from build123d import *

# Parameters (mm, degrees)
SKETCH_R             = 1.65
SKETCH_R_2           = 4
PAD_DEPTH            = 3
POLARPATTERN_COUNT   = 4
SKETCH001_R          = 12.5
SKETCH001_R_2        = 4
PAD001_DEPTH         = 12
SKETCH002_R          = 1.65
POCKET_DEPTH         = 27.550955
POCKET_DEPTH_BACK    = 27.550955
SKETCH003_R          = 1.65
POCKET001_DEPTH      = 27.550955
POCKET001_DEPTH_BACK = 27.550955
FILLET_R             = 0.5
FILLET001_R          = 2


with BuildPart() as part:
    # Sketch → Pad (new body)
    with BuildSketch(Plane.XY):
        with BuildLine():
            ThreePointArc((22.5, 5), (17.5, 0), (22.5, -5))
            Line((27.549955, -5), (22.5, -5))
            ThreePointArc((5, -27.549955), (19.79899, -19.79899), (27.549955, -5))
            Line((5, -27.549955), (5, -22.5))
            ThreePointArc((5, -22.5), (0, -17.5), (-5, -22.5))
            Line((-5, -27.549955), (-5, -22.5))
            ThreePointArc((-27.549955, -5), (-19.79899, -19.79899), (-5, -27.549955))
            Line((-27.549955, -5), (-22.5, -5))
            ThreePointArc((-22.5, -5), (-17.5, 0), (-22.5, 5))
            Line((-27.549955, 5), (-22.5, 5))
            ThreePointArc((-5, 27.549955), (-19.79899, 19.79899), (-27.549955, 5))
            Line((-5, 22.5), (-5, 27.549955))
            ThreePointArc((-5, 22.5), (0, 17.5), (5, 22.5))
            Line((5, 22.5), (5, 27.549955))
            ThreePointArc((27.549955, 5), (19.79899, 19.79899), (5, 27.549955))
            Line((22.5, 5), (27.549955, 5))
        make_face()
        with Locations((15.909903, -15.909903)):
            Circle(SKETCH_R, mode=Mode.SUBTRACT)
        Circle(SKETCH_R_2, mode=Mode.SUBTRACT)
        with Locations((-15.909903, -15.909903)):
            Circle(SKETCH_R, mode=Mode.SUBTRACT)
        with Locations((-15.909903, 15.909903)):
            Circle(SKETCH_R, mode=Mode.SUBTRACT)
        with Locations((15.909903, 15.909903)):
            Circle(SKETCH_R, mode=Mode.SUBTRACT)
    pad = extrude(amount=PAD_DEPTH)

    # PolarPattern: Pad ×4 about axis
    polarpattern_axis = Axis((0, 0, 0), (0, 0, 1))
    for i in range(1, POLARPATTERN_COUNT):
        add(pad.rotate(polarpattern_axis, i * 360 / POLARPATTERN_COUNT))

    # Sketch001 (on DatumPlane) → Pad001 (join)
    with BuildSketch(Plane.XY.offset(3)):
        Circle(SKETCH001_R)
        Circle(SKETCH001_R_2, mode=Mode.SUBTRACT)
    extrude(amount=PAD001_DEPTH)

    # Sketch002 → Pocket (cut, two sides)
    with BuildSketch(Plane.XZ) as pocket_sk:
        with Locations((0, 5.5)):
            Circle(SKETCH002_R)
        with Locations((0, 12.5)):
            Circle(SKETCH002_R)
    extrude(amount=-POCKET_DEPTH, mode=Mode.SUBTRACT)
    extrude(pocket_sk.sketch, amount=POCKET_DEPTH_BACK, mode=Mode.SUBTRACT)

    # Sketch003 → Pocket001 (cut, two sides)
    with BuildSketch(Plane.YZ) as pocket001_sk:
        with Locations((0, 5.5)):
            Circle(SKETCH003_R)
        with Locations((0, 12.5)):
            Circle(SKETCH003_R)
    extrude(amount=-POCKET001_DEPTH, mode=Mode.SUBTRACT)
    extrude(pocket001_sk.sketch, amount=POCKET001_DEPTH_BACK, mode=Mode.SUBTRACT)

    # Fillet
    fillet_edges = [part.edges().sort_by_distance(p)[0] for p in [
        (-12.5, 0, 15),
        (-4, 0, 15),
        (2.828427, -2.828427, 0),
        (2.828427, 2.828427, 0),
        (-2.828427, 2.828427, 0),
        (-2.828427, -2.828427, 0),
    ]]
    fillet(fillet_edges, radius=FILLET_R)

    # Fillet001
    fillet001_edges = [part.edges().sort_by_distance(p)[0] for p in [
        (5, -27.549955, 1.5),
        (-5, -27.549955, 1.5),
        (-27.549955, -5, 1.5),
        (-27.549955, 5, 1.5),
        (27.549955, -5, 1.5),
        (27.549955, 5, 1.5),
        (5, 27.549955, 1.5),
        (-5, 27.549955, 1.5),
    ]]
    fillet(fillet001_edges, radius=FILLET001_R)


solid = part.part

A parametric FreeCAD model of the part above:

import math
import FreeCAD as App
import Part
import Sketcher

V = App.Vector


def edges_at(feature, points):
    """Names of the edges that pass closest to the given points."""
    edges = feature.Shape.Edges
    near = lambda p: min(range(len(edges)), key=lambda i: edges[i].distToShape(Part.Vertex(*p))[0])
    return sorted({f"Edge{near(p) + 1}" for p in points})

doc = App.newDocument("Part")
params = doc.addObject("Spreadsheet::Sheet", "Params")
for row, (alias, value) in enumerate([
    ("sketch1_diameter", "8 mm"),
    ("sketch1_radius", "5 mm"),
    ("sketch1_radius2", "28.000001 mm"),
    ("sketch1_diameter2", "3.3 mm"),
    ("pad1_length", "3 mm"),
    ("sketch2_diameter", "25 mm"),
    ("sketch2_diameter2", "8 mm"),
    ("pad2_length", "12 mm"),
    ("sketch3_diameter", "3.3 mm"),
    ("sketch4_diameter", "3.3 mm"),
    ("fillet_radius", "0.5 mm"),
    ("fillet2_radius", "2 mm"),
], start=1):
    params.set(f"A{row}", alias)
    params.set(f"B{row}", "=" + value)
    params.setAlias(f"B{row}", alias)

body = doc.addObject("PartDesign::Body", "Body")

sketch1 = body.newObject("Sketcher::SketchObject", "Sketch")
sketch1.AttachmentSupport = (doc.getObject("XY_Plane"), [""])
sketch1.MapMode = "FlatFace"
sketch1.addGeometry(Part.ArcOfCircle(Part.Circle(V(22.5, 0, 0), V(0, 0, 1), 5), math.radians(90), math.radians(270)), False)
sketch1.addGeometry(Part.LineSegment(V(22.5, 5, 0), V(27.5, 5, 0)), False)
sketch1.addGeometry(Part.ArcOfCircle(Part.Circle(V(0, 0, 0), V(0, 0, 1), 28), math.radians(10), math.radians(80)), False)
sketch1.addGeometry(Part.LineSegment(V(5, 27.5, 0), V(5, 22.5, 0)), False)
sketch1.addGeometry(Part.ArcOfCircle(Part.Circle(V(0, 22.5, 0), V(0, 0, 1), 5), math.radians(180), math.radians(360)), False)
sketch1.addGeometry(Part.LineSegment(V(-5, 22.5, 0), V(-5, 27.5, 0)), False)
sketch1.addGeometry(Part.ArcOfCircle(Part.Circle(V(0, 0, 0), V(0, 0, 1), 28), math.radians(100), math.radians(170)), False)
sketch1.addGeometry(Part.LineSegment(V(-27.5, 5, 0), V(-22.5, 5, 0)), False)
sketch1.addGeometry(Part.ArcOfCircle(Part.Circle(V(-22.5, 0, 0), V(0, 0, 1), 5), math.radians(-90), math.radians(90)), False)
sketch1.addGeometry(Part.LineSegment(V(-22.5, -5, 0), V(-27.5, -5, 0)), False)
sketch1.addGeometry(Part.ArcOfCircle(Part.Circle(V(0, 0, 0), V(0, 0, 1), 28), math.radians(-170), math.radians(-100)), False)
sketch1.addGeometry(Part.LineSegment(V(-5, -27.5, 0), V(-5, -22.5, 0)), False)
sketch1.addGeometry(Part.ArcOfCircle(Part.Circle(V(0, -22.5, 0), V(0, 0, 1), 5), math.radians(0), math.radians(180)), False)
sketch1.addGeometry(Part.LineSegment(V(5, -22.5, 0), V(5, -27.5, 0)), False)
sketch1.addGeometry(Part.ArcOfCircle(Part.Circle(V(0, 0, 0), V(0, 0, 1), 28), math.radians(-80), math.radians(-10)), False)
sketch1.addGeometry(Part.LineSegment(V(27.5, -5, 0), V(22.5, -5, 0)), False)
sketch1.addGeometry(Part.Circle(V(15.9, -15.9, 0), V(0, 0, 1), 1.6), False)
sketch1.addGeometry(Part.Circle(V(-15.9, -15.9, 0), V(0, 0, 1), 1.6), False)
sketch1.addGeometry(Part.Circle(V(15.9, 15.9, 0), V(0, 0, 1), 1.6), False)
sketch1.addGeometry(Part.Circle(V(0, 0, 0), V(0, 0, 1), 4), False)
sketch1.addGeometry(Part.Circle(V(-15.9, 15.9, 0), V(0, 0, 1), 1.6), False)
sketch1.addConstraint(Sketcher.Constraint("Tangent", 0, 1, 1, 1))
sketch1.addConstraint(Sketcher.Constraint("Coincident", 1, 2, 2, 1))
sketch1.addConstraint(Sketcher.Constraint("Coincident", 2, 2, 3, 1))
sketch1.addConstraint(Sketcher.Constraint("Tangent", 3, 2, 4, 2))
sketch1.addConstraint(Sketcher.Constraint("Tangent", 4, 1, 5, 1))
sketch1.addConstraint(Sketcher.Constraint("Coincident", 5, 2, 6, 1))
sketch1.addConstraint(Sketcher.Constraint("Coincident", 6, 2, 7, 1))
sketch1.addConstraint(Sketcher.Constraint("Tangent", 7, 2, 8, 2))
sketch1.addConstraint(Sketcher.Constraint("Tangent", 8, 1, 9, 1))
sketch1.addConstraint(Sketcher.Constraint("Coincident", 9, 2, 10, 1))
sketch1.addConstraint(Sketcher.Constraint("Coincident", 10, 2, 11, 1))
sketch1.addConstraint(Sketcher.Constraint("Tangent", 11, 2, 12, 2))
sketch1.addConstraint(Sketcher.Constraint("Tangent", 12, 1, 13, 1))
sketch1.addConstraint(Sketcher.Constraint("Coincident", 13, 2, 14, 1))
sketch1.addConstraint(Sketcher.Constraint("Coincident", 14, 2, 15, 1))
sketch1.addConstraint(Sketcher.Constraint("Tangent", 15, 2, 0, 2))
sketch1.addConstraint(Sketcher.Constraint("Horizontal", 1))
sketch1.addConstraint(Sketcher.Constraint("Vertical", 3))
sketch1.addConstraint(Sketcher.Constraint("Vertical", 5))
sketch1.addConstraint(Sketcher.Constraint("Horizontal", 7))
sketch1.addConstraint(Sketcher.Constraint("Horizontal", 9))
sketch1.addConstraint(Sketcher.Constraint("Vertical", 11))
sketch1.addConstraint(Sketcher.Constraint("Vertical", 13))
sketch1.addConstraint(Sketcher.Constraint("Horizontal", 15))
sketch1.addConstraint(Sketcher.Constraint("Coincident", 2, 3, -1, 1))
sketch1.addConstraint(Sketcher.Constraint("Coincident", 6, 3, -1, 1))
sketch1.addConstraint(Sketcher.Constraint("Coincident", 10, 3, -1, 1))
sketch1.addConstraint(Sketcher.Constraint("Coincident", 14, 3, -1, 1))
sketch1.addConstraint(Sketcher.Constraint("Coincident", 19, 3, -1, 1))
sketch1.addConstraint(Sketcher.Constraint("Equal", 0, 4))
sketch1.addConstraint(Sketcher.Constraint("Equal", 2, 6))
sketch1.addConstraint(Sketcher.Constraint("Equal", 4, 8))
sketch1.addConstraint(Sketcher.Constraint("Equal", 6, 10))
sketch1.addConstraint(Sketcher.Constraint("Equal", 8, 12))
sketch1.addConstraint(Sketcher.Constraint("Equal", 10, 14))
sketch1.addConstraint(Sketcher.Constraint("Equal", 16, 17))
sketch1.addConstraint(Sketcher.Constraint("Equal", 17, 18))
sketch1.addConstraint(Sketcher.Constraint("Equal", 18, 20))
sketch1.addConstraint(Sketcher.Constraint("Symmetric", 0, 3, 8, 3, -1, 1))
sketch1.addConstraint(Sketcher.Constraint("Symmetric", 4, 3, 12, 3, -1, 1))
sketch1.addConstraint(Sketcher.Constraint("Symmetric", 17, 3, 18, 3, -1, 1))
sketch1.addConstraint(Sketcher.Constraint("Symmetric", 16, 3, 20, 3, -1, 1))
sketch1.addConstraint(Sketcher.Constraint("Symmetric", 16, 3, 17, 3, -2))
sketch1.addConstraint(Sketcher.Constraint("PointOnObject", 0, 3, -1))
sketch1.addConstraint(Sketcher.Constraint("PointOnObject", 4, 3, -2))
sketch1.addConstraint(Sketcher.Constraint("Equal", 15, 3))
sketch1.addConstraint(Sketcher.Constraint("Diameter", 19, 8.0))
sketch1.addConstraint(Sketcher.Constraint("Radius", 0, 5.0))
sketch1.addConstraint(Sketcher.Constraint("Radius", 2, 28.000001))
sketch1.addConstraint(Sketcher.Constraint("Diameter", 16, 3.3))
sketch1.addConstraint(Sketcher.Constraint("DistanceX", 8, 3, 0, 3, 45.0))
sketch1.addConstraint(Sketcher.Constraint("DistanceX", -1, 1, 16, 3, 15.909903))
sketch1.addConstraint(Sketcher.Constraint("DistanceY", 16, 3, -1, 1, 15.909903))
sketch1.setExpression("Constraints[46]", "Params.sketch1_diameter")
sketch1.setExpression("Constraints[47]", "Params.sketch1_radius")
sketch1.setExpression("Constraints[48]", "Params.sketch1_radius2")
sketch1.setExpression("Constraints[49]", "Params.sketch1_diameter2")
pad1 = body.newObject("PartDesign::Pad", "Pad")
pad1.Profile = sketch1
pad1.setExpression("Length", "Params.pad1_length")
doc.recompute()

polarpattern = body.newObject("PartDesign::PolarPattern", "PolarPattern")
polarpattern.Originals = [pad1]
polarpattern.Axis = (doc.getObject("Z_Axis"), [""])
polarpattern.Angle = 360
polarpattern.Occurrences = 4
body.Tip = polarpattern

sketch2 = body.newObject("Sketcher::SketchObject", "Sketch001")
sketch2.AttachmentSupport = (doc.getObject("XY_Plane"), [""])
sketch2.MapMode = "FlatFace"
sketch2.AttachmentOffset = App.Placement(V(0, 0, 3), App.Rotation())
sketch2.addGeometry(Part.Circle(V(0, 0, 0), V(0, 0, 1), 12.5), False)
sketch2.addGeometry(Part.Circle(V(0, 0, 0), V(0, 0, 1), 4), False)
sketch2.addConstraint(Sketcher.Constraint("Coincident", 0, 3, -1, 1))
sketch2.addConstraint(Sketcher.Constraint("Coincident", 1, 3, -1, 1))
sketch2.addConstraint(Sketcher.Constraint("Diameter", 0, 25.0))
sketch2.addConstraint(Sketcher.Constraint("Diameter", 1, 8.0))
sketch2.setExpression("Constraints[2]", "Params.sketch2_diameter")
sketch2.setExpression("Constraints[3]", "Params.sketch2_diameter2")
pad2 = body.newObject("PartDesign::Pad", "Pad001")
pad2.Profile = sketch2
pad2.setExpression("Length", "Params.pad2_length")

sketch3 = body.newObject("Sketcher::SketchObject", "Sketch002")
sketch3.AttachmentSupport = (doc.getObject("XZ_Plane"), [""])
sketch3.MapMode = "FlatFace"
sketch3.addGeometry(Part.Circle(V(0, 5.5, 0), V(0, 0, 1), 1.6), False)
sketch3.addGeometry(Part.Circle(V(0, 12.5, 0), V(0, 0, 1), 1.6), False)
sketch3.addConstraint(Sketcher.Constraint("Equal", 0, 1))
sketch3.addConstraint(Sketcher.Constraint("PointOnObject", 0, 3, -2))
sketch3.addConstraint(Sketcher.Constraint("PointOnObject", 1, 3, -2))
sketch3.addConstraint(Sketcher.Constraint("Diameter", 0, 3.3))
sketch3.addConstraint(Sketcher.Constraint("DistanceY", 0, 3, 1, 3, 7.0))
sketch3.addConstraint(Sketcher.Constraint("DistanceY", -1, 1, 0, 3, 5.5))
sketch3.setExpression("Constraints[3]", "Params.sketch3_diameter")
pocket1 = body.newObject("PartDesign::Pocket", "Pocket")
pocket1.Profile = sketch3
pocket1.Type = "ThroughAll"
pocket1.Midplane = True

sketch4 = body.newObject("Sketcher::SketchObject", "Sketch003")
sketch4.AttachmentSupport = (doc.getObject("YZ_Plane"), [""])
sketch4.MapMode = "FlatFace"
sketch4.addGeometry(Part.Circle(V(0, 5.5, 0), V(0, 0, 1), 1.6), False)
sketch4.addGeometry(Part.Circle(V(0, 12.5, 0), V(0, 0, 1), 1.6), False)
sketch4.addConstraint(Sketcher.Constraint("Equal", 0, 1))
sketch4.addConstraint(Sketcher.Constraint("PointOnObject", 0, 3, -2))
sketch4.addConstraint(Sketcher.Constraint("PointOnObject", 1, 3, -2))
sketch4.addConstraint(Sketcher.Constraint("Diameter", 0, 3.3))
sketch4.addConstraint(Sketcher.Constraint("DistanceY", 0, 3, 1, 3, 7.0))
sketch4.addConstraint(Sketcher.Constraint("DistanceY", -1, 1, 0, 3, 5.5))
sketch4.setExpression("Constraints[3]", "Params.sketch4_diameter")
pocket2 = body.newObject("PartDesign::Pocket", "Pocket001")
pocket2.Profile = sketch4
pocket2.Type = "ThroughAll"
pocket2.Midplane = True
doc.recompute()

fillet = body.newObject("PartDesign::Fillet", "Fillet")
fillet.Base = (pocket2, edges_at(pocket2, [
    (-12.5, 0, 15),
    (-4, 0, 15),
    (-4, 0, 0),
    (-4, 0, 0),
    (-4, 0, 0),
    (-4, 0, 0),
]))
fillet.setExpression("Radius", "Params.fillet_radius")
doc.recompute()

fillet2 = body.newObject("PartDesign::Fillet", "Fillet001")
fillet2.Base = (fillet, edges_at(fillet, [
    (5, -27.55, 1.5),
    (-5, -27.55, 1.5),
    (-27.55, -5, 1.5),
    (-27.55, 5, 1.5),
    (27.55, -5, 1.5),
    (27.55, 5, 1.5),
    (5, 27.55, 1.5),
    (-5, 27.55, 1.5),
]))
fillet2.setExpression("Radius", "Params.fillet2_radius")

doc.recompute()
